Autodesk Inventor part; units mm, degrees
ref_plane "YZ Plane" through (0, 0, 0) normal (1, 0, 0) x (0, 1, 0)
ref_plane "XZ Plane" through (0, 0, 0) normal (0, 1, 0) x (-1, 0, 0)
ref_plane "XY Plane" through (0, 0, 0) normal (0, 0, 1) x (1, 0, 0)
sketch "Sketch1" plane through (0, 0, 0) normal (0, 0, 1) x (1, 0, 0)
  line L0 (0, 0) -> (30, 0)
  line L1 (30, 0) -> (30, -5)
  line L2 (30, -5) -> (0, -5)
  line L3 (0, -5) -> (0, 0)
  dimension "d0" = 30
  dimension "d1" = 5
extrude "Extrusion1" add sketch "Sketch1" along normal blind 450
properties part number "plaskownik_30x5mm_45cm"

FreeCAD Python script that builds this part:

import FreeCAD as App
import Part
import Sketcher
from FreeCAD import Vector
Q = App.Units.Quantity

doc = App.newDocument("Part")
body = doc.addObject("PartDesign::Body", "Body")

# Sketch on XY plane
sketch1 = body.newObject("Sketcher::SketchObject", "Sketch")
sketch1.AttachmentSupport = (doc.getObject("XY_Plane"), [""])
sketch1.MapMode = "FlatFace"
sketch1.addGeometry([
    Part.LineSegment(Vector(30, 0, 0), Vector(0, 0, 0)),
    Part.LineSegment(Vector(0, 0, 0), Vector(0, -5, 0)),
    Part.LineSegment(Vector(0, -5, 0), Vector(30, -5, 0)),
    Part.LineSegment(Vector(30, -5, 0), Vector(30, 0, 0)),
], False)
sketch1.addConstraint([
    Sketcher.Constraint("Coincident", 0, 2, 1, 1),
    Sketcher.Constraint("Coincident", 1, 2, 2, 1),
    Sketcher.Constraint("Coincident", 2, 2, 3, 1),
    Sketcher.Constraint("Coincident", 3, 2, 0, 1),
    Sketcher.Constraint("Horizontal", 0),
    Sketcher.Constraint("Vertical", 1),
    Sketcher.Constraint("Horizontal", 2),
    Sketcher.Constraint("Vertical", 3),
    Sketcher.Constraint("Coincident", 0, 2, -1, 1),
    Sketcher.Constraint("DistanceX", 0, 2, 0, 1, Q("30 mm")),
    Sketcher.Constraint("DistanceY", 1, 2, 1, 1, Q("5 mm")),
])
pad1 = body.newObject("PartDesign::Pad", "Pad")
pad1.Profile = sketch1
pad1.Length = 450

doc.recompute()
